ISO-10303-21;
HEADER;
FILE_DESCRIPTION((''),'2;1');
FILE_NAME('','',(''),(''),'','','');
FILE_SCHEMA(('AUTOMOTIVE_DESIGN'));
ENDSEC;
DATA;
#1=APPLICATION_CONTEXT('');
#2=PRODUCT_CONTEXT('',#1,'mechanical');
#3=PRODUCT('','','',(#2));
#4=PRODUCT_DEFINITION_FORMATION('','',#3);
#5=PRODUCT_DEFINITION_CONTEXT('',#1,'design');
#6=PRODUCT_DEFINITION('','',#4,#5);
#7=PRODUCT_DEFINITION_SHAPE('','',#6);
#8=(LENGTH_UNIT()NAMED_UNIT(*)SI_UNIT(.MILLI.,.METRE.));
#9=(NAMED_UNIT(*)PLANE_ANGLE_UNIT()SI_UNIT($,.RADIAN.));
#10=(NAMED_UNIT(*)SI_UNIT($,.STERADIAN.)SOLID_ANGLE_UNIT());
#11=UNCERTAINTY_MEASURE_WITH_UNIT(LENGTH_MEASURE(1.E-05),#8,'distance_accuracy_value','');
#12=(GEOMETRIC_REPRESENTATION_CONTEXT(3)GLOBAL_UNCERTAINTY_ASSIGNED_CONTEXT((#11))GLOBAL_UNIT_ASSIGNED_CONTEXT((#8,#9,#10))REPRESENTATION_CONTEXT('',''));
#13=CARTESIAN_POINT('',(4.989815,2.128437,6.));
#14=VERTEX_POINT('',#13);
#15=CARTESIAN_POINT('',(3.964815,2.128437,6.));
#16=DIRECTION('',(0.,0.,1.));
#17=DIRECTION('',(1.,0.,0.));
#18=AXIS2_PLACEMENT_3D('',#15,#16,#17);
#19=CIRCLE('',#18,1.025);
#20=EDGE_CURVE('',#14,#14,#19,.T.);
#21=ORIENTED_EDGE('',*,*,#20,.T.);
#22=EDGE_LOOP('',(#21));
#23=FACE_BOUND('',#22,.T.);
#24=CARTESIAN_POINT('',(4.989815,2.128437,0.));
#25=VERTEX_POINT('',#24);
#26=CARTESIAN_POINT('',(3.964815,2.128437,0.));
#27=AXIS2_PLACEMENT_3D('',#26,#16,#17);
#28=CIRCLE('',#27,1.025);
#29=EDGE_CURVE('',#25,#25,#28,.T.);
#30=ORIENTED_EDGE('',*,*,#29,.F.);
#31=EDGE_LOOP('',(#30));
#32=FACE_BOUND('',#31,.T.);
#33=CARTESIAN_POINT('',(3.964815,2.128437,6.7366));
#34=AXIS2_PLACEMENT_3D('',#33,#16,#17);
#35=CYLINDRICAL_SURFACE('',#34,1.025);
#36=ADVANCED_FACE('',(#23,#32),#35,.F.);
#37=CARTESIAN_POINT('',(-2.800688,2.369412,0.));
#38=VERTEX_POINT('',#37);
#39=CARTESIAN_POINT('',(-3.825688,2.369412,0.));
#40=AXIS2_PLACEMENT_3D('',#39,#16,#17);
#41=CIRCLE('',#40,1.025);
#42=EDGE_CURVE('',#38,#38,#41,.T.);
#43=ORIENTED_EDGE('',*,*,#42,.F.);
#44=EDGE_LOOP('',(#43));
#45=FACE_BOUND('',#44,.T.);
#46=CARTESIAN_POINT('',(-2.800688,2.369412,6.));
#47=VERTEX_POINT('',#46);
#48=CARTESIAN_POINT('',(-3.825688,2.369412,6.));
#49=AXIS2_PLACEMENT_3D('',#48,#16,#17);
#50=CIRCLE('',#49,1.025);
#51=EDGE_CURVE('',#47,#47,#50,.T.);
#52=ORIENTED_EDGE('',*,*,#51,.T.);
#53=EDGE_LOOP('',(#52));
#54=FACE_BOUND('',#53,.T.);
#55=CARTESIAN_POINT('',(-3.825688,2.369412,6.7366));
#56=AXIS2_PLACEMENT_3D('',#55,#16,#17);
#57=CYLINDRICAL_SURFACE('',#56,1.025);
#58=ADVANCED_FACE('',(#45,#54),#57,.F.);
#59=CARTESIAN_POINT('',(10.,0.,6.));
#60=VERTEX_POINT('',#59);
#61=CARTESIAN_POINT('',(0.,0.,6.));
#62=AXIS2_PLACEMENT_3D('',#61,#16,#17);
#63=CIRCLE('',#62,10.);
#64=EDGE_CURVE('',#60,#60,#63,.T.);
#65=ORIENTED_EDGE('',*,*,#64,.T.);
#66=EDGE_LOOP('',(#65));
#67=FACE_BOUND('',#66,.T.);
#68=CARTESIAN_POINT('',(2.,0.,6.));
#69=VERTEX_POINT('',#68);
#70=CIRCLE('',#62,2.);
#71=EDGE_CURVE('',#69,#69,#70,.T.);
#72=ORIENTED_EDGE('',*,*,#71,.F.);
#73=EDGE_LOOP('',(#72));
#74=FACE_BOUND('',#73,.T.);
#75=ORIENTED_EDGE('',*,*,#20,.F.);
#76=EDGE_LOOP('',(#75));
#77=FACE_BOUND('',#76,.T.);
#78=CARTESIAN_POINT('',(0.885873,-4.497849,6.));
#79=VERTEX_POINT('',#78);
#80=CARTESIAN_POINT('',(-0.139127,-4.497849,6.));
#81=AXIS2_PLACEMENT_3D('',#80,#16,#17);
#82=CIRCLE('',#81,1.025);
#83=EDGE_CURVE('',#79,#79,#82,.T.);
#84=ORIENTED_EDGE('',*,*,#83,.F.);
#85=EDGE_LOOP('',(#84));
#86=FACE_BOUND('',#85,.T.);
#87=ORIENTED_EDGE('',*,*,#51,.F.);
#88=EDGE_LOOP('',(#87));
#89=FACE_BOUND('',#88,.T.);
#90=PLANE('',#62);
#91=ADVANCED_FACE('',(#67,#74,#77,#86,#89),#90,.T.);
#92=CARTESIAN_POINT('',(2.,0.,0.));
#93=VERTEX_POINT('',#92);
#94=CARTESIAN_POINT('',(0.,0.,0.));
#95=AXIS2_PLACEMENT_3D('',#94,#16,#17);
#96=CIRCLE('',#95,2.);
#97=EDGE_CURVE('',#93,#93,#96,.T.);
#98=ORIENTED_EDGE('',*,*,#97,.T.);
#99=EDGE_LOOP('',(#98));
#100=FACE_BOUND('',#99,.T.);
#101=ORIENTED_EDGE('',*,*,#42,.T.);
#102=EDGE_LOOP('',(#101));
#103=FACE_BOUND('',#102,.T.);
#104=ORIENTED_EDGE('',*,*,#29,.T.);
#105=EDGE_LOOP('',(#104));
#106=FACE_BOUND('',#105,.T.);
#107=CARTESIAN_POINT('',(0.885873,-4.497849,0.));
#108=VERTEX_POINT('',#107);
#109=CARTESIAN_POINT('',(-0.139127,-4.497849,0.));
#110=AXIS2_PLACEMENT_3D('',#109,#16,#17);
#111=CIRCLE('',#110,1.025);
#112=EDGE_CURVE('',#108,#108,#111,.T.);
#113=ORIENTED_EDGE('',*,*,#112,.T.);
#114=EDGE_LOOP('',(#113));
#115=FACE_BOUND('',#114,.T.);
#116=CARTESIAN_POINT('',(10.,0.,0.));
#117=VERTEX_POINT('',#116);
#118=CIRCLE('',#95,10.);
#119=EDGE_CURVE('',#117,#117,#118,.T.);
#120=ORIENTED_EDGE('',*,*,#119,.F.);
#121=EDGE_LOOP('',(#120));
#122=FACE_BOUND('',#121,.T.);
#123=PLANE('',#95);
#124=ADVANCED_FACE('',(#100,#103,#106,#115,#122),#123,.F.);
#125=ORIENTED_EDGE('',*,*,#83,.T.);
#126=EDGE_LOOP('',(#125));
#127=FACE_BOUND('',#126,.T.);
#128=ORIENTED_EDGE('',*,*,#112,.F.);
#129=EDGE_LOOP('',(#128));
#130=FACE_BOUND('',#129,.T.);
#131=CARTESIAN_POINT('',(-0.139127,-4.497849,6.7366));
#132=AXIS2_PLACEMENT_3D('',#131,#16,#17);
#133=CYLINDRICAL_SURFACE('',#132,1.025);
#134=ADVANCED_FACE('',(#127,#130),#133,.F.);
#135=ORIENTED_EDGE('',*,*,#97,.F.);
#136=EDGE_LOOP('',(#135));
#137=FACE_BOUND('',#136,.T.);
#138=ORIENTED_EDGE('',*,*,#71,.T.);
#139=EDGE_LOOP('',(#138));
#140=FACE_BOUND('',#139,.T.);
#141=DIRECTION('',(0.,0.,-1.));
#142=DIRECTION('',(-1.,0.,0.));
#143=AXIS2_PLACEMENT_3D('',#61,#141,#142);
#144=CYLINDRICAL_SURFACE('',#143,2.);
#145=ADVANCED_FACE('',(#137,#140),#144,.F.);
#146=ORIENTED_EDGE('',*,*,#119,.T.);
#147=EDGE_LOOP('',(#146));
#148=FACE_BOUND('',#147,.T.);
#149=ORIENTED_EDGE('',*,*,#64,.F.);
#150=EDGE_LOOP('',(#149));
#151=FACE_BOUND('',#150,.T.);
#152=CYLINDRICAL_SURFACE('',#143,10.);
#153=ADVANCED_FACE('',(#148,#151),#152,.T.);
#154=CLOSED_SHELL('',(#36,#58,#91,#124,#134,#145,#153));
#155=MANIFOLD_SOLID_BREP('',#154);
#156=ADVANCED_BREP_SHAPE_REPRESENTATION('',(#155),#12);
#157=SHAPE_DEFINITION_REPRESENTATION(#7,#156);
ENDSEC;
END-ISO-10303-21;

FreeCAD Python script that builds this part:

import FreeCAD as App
import Part
import Sketcher

V = App.Vector

doc = App.newDocument("Part")
body = doc.addObject("PartDesign::Body", "Body")

sketch1 = body.newObject("Sketcher::SketchObject", "Sketch")
sketch1.AttachmentSupport = (doc.getObject("XY_Plane"), [""])
sketch1.MapMode = "FlatFace"
sketch1.addGeometry([
    Part.Circle(V(0, 0, 0), V(0, 0, 1), 10),
    Part.Circle(V(0, 0, 0), V(0, 0, 1), 2),
], False)
sketch1.addConstraint([
    Sketcher.Constraint("Coincident", 0, 3, -1, 1),
    Sketcher.Constraint("Coincident", 1, 3, -1, 1),
    Sketcher.Constraint("Diameter", 0, 20.0),
    Sketcher.Constraint("Diameter", 1, 4.0),
])
pad1 = body.newObject("PartDesign::Pad", "Pad")
pad1.Profile = sketch1
pad1.Length = 6

sketch2 = body.newObject("Sketcher::SketchObject", "Sketch001")
sketch2.AttachmentSupport = (doc.getObject("XY_Plane"), [""])
sketch2.MapMode = "FlatFace"
sketch2.AttachmentOffset = App.Placement(V(0, 0, 6.7366), App.Rotation())
sketch2.addGeometry([
    Part.Circle(V(-0.1, -4.5, 0), V(0, 0, 1), 1),
    Part.Circle(V(-3.8, 2.4, 0), V(0, 0, 1), 1),
    Part.Circle(V(4, 2.1, 0), V(0, 0, 1), 1),
], False)
sketch2.addConstraint([
    Sketcher.Constraint("Equal", 0, 1),
    Sketcher.Constraint("Equal", 1, 2),
    Sketcher.Constraint("Diameter", 0, 2.05),
    Sketcher.Constraint("DistanceY", 0, 3, -1, 1, 4.497849),
    Sketcher.Constraint("DistanceY", -1, 1, 1, 3, 2.369412),
    Sketcher.Constraint("DistanceX", 1, 3, 0, 3, 3.686561),
    Sketcher.Constraint("DistanceX", 0, 3, 2, 3, 4.103941),
    Sketcher.Constraint("DistanceX", 0, 3, -1, 1, 0.139127),
    Sketcher.Constraint("DistanceY", -1, 1, 2, 3, 2.128437),
])
doc.recompute()
hole = body.newObject("PartDesign::Hole", "Hole")
hole.Profile = sketch2
hole.ThreadType = "None"
hole.Diameter = 2.05
hole.DepthType = "ThroughAll"

doc.recompute()
